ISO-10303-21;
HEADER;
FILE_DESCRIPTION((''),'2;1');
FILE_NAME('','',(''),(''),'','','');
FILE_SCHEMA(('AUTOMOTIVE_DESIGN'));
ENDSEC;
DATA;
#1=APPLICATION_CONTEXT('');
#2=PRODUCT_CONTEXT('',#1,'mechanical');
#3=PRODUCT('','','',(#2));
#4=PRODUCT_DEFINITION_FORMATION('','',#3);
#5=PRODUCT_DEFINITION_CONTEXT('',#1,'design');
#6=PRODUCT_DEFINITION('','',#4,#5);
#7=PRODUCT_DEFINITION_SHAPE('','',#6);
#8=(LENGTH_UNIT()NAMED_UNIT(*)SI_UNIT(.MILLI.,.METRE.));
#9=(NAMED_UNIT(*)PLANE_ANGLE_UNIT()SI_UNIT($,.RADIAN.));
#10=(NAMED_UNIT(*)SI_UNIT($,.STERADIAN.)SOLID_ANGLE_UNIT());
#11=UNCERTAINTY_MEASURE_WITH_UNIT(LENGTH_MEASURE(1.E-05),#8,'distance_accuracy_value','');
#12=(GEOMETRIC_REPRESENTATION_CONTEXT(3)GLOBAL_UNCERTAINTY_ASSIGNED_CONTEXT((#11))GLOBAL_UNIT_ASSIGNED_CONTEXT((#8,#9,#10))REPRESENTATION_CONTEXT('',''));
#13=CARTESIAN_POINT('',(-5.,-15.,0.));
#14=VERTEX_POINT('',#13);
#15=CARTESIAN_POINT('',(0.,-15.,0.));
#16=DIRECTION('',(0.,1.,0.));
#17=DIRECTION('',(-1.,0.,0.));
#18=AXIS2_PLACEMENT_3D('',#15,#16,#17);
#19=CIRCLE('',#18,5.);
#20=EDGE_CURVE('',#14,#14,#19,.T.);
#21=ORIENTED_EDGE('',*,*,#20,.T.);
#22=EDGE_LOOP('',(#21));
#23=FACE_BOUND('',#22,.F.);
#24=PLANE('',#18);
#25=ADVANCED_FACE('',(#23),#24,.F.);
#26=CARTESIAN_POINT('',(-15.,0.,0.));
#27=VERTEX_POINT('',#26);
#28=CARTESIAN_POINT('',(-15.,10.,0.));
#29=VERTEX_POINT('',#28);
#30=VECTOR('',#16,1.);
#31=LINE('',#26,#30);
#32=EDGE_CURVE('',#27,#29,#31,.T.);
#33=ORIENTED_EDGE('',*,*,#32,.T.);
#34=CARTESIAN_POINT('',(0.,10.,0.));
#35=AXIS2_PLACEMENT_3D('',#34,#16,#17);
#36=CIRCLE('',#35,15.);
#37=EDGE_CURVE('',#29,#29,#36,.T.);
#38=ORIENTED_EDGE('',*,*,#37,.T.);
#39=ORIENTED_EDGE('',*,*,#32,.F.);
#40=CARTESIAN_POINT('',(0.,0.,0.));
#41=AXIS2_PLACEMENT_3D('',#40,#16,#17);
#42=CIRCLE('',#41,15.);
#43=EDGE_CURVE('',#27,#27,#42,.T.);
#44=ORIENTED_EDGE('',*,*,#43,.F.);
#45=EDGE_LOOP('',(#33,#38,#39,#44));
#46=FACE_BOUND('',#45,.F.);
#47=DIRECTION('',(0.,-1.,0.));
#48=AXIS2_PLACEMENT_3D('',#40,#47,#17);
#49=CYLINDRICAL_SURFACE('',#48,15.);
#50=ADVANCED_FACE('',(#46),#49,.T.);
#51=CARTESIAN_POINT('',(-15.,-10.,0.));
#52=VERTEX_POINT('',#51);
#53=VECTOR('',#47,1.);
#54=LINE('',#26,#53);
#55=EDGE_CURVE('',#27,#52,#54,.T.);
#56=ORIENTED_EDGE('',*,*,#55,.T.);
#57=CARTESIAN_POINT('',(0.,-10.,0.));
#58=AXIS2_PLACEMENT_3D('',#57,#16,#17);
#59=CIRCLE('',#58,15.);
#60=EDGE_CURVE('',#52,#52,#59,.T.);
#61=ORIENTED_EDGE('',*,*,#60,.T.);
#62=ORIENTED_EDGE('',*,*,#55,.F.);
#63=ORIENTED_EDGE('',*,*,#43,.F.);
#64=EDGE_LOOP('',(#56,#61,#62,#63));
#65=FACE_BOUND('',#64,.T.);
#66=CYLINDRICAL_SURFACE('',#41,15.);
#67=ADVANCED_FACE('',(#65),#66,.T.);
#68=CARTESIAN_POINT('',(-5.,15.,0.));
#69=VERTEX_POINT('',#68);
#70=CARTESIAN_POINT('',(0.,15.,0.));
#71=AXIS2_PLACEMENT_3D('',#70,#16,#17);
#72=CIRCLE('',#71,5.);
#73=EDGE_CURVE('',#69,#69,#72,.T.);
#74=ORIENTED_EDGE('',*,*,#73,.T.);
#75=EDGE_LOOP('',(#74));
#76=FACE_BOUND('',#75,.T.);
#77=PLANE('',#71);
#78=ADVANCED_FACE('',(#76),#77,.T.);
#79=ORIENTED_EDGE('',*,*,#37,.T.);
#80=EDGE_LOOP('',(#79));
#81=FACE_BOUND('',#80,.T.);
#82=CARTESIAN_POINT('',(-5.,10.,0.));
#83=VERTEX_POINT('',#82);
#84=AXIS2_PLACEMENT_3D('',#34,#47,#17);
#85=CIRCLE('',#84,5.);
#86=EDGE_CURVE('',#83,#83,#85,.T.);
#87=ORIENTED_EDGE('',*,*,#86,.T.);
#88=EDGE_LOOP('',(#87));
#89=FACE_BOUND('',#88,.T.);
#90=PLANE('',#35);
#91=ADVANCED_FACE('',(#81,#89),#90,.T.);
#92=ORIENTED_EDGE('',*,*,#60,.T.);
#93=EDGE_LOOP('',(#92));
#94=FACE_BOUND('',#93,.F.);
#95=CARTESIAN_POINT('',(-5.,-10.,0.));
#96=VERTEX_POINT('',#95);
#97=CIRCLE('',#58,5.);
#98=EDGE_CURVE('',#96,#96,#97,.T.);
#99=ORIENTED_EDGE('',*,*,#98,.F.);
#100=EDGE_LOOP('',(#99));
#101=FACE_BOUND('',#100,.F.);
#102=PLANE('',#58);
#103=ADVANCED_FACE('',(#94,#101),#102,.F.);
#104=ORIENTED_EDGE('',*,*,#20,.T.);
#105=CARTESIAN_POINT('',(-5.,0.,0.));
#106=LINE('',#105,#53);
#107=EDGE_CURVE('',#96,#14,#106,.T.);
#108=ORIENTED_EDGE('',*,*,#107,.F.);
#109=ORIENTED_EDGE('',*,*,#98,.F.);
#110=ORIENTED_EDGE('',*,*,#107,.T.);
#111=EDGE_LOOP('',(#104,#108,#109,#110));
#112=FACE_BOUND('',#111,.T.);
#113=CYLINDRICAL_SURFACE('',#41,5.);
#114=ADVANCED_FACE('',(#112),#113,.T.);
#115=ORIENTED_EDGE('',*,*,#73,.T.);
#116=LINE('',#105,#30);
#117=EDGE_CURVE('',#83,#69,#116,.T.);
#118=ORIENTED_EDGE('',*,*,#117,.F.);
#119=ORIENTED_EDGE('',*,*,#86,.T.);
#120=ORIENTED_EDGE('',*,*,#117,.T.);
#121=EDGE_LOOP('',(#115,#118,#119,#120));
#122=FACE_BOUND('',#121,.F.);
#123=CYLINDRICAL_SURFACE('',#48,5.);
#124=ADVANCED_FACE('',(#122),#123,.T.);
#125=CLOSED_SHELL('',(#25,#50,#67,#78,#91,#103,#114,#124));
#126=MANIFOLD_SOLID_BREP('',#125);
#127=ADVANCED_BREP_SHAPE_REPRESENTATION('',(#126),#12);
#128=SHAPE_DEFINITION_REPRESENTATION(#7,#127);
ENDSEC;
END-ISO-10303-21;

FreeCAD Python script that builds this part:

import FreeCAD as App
import Part
import Sketcher
Q = App.Units.Quantity

doc = App.newDocument("Part")
body = doc.addObject("PartDesign::Body", "Body")

# Sketch on XZ plane
sketch1 = body.newObject("Sketcher::SketchObject", "Sketch")
sketch1.AttachmentSupport = (doc.getObject("XZ_Plane"), [""])
sketch1.MapMode = "FlatFace"
sketch1.addGeometry(Part.Circle(App.Vector(0, 0, 0), App.Vector(0, 0, 1), 15), False)
sketch1.addConstraint(Sketcher.Constraint("Coincident", 0, 3, -1, 1))
sketch1.addConstraint(Sketcher.Constraint("Diameter", 0, Q("30 mm")))
pad1 = body.newObject("PartDesign::Pad", "Pad")
pad1.Profile = sketch1
pad1.Length = 20
pad1.Midplane = True

# Sketch on XZ plane
sketch2 = body.newObject("Sketcher::SketchObject", "Sketch001")
sketch2.AttachmentSupport = (doc.getObject("XZ_Plane"), [""])
sketch2.MapMode = "FlatFace"
sketch2.addGeometry(Part.Circle(App.Vector(0, 0, 0), App.Vector(0, 0, 1), 5), False)
sketch2.addConstraint(Sketcher.Constraint("Coincident", 0, 3, -1, 1))
sketch2.addConstraint(Sketcher.Constraint("Diameter", 0, Q("10 mm")))
pad2 = body.newObject("PartDesign::Pad", "Pad001")
pad2.Profile = sketch2
pad2.Length = 30
pad2.Midplane = True

doc.recompute()
